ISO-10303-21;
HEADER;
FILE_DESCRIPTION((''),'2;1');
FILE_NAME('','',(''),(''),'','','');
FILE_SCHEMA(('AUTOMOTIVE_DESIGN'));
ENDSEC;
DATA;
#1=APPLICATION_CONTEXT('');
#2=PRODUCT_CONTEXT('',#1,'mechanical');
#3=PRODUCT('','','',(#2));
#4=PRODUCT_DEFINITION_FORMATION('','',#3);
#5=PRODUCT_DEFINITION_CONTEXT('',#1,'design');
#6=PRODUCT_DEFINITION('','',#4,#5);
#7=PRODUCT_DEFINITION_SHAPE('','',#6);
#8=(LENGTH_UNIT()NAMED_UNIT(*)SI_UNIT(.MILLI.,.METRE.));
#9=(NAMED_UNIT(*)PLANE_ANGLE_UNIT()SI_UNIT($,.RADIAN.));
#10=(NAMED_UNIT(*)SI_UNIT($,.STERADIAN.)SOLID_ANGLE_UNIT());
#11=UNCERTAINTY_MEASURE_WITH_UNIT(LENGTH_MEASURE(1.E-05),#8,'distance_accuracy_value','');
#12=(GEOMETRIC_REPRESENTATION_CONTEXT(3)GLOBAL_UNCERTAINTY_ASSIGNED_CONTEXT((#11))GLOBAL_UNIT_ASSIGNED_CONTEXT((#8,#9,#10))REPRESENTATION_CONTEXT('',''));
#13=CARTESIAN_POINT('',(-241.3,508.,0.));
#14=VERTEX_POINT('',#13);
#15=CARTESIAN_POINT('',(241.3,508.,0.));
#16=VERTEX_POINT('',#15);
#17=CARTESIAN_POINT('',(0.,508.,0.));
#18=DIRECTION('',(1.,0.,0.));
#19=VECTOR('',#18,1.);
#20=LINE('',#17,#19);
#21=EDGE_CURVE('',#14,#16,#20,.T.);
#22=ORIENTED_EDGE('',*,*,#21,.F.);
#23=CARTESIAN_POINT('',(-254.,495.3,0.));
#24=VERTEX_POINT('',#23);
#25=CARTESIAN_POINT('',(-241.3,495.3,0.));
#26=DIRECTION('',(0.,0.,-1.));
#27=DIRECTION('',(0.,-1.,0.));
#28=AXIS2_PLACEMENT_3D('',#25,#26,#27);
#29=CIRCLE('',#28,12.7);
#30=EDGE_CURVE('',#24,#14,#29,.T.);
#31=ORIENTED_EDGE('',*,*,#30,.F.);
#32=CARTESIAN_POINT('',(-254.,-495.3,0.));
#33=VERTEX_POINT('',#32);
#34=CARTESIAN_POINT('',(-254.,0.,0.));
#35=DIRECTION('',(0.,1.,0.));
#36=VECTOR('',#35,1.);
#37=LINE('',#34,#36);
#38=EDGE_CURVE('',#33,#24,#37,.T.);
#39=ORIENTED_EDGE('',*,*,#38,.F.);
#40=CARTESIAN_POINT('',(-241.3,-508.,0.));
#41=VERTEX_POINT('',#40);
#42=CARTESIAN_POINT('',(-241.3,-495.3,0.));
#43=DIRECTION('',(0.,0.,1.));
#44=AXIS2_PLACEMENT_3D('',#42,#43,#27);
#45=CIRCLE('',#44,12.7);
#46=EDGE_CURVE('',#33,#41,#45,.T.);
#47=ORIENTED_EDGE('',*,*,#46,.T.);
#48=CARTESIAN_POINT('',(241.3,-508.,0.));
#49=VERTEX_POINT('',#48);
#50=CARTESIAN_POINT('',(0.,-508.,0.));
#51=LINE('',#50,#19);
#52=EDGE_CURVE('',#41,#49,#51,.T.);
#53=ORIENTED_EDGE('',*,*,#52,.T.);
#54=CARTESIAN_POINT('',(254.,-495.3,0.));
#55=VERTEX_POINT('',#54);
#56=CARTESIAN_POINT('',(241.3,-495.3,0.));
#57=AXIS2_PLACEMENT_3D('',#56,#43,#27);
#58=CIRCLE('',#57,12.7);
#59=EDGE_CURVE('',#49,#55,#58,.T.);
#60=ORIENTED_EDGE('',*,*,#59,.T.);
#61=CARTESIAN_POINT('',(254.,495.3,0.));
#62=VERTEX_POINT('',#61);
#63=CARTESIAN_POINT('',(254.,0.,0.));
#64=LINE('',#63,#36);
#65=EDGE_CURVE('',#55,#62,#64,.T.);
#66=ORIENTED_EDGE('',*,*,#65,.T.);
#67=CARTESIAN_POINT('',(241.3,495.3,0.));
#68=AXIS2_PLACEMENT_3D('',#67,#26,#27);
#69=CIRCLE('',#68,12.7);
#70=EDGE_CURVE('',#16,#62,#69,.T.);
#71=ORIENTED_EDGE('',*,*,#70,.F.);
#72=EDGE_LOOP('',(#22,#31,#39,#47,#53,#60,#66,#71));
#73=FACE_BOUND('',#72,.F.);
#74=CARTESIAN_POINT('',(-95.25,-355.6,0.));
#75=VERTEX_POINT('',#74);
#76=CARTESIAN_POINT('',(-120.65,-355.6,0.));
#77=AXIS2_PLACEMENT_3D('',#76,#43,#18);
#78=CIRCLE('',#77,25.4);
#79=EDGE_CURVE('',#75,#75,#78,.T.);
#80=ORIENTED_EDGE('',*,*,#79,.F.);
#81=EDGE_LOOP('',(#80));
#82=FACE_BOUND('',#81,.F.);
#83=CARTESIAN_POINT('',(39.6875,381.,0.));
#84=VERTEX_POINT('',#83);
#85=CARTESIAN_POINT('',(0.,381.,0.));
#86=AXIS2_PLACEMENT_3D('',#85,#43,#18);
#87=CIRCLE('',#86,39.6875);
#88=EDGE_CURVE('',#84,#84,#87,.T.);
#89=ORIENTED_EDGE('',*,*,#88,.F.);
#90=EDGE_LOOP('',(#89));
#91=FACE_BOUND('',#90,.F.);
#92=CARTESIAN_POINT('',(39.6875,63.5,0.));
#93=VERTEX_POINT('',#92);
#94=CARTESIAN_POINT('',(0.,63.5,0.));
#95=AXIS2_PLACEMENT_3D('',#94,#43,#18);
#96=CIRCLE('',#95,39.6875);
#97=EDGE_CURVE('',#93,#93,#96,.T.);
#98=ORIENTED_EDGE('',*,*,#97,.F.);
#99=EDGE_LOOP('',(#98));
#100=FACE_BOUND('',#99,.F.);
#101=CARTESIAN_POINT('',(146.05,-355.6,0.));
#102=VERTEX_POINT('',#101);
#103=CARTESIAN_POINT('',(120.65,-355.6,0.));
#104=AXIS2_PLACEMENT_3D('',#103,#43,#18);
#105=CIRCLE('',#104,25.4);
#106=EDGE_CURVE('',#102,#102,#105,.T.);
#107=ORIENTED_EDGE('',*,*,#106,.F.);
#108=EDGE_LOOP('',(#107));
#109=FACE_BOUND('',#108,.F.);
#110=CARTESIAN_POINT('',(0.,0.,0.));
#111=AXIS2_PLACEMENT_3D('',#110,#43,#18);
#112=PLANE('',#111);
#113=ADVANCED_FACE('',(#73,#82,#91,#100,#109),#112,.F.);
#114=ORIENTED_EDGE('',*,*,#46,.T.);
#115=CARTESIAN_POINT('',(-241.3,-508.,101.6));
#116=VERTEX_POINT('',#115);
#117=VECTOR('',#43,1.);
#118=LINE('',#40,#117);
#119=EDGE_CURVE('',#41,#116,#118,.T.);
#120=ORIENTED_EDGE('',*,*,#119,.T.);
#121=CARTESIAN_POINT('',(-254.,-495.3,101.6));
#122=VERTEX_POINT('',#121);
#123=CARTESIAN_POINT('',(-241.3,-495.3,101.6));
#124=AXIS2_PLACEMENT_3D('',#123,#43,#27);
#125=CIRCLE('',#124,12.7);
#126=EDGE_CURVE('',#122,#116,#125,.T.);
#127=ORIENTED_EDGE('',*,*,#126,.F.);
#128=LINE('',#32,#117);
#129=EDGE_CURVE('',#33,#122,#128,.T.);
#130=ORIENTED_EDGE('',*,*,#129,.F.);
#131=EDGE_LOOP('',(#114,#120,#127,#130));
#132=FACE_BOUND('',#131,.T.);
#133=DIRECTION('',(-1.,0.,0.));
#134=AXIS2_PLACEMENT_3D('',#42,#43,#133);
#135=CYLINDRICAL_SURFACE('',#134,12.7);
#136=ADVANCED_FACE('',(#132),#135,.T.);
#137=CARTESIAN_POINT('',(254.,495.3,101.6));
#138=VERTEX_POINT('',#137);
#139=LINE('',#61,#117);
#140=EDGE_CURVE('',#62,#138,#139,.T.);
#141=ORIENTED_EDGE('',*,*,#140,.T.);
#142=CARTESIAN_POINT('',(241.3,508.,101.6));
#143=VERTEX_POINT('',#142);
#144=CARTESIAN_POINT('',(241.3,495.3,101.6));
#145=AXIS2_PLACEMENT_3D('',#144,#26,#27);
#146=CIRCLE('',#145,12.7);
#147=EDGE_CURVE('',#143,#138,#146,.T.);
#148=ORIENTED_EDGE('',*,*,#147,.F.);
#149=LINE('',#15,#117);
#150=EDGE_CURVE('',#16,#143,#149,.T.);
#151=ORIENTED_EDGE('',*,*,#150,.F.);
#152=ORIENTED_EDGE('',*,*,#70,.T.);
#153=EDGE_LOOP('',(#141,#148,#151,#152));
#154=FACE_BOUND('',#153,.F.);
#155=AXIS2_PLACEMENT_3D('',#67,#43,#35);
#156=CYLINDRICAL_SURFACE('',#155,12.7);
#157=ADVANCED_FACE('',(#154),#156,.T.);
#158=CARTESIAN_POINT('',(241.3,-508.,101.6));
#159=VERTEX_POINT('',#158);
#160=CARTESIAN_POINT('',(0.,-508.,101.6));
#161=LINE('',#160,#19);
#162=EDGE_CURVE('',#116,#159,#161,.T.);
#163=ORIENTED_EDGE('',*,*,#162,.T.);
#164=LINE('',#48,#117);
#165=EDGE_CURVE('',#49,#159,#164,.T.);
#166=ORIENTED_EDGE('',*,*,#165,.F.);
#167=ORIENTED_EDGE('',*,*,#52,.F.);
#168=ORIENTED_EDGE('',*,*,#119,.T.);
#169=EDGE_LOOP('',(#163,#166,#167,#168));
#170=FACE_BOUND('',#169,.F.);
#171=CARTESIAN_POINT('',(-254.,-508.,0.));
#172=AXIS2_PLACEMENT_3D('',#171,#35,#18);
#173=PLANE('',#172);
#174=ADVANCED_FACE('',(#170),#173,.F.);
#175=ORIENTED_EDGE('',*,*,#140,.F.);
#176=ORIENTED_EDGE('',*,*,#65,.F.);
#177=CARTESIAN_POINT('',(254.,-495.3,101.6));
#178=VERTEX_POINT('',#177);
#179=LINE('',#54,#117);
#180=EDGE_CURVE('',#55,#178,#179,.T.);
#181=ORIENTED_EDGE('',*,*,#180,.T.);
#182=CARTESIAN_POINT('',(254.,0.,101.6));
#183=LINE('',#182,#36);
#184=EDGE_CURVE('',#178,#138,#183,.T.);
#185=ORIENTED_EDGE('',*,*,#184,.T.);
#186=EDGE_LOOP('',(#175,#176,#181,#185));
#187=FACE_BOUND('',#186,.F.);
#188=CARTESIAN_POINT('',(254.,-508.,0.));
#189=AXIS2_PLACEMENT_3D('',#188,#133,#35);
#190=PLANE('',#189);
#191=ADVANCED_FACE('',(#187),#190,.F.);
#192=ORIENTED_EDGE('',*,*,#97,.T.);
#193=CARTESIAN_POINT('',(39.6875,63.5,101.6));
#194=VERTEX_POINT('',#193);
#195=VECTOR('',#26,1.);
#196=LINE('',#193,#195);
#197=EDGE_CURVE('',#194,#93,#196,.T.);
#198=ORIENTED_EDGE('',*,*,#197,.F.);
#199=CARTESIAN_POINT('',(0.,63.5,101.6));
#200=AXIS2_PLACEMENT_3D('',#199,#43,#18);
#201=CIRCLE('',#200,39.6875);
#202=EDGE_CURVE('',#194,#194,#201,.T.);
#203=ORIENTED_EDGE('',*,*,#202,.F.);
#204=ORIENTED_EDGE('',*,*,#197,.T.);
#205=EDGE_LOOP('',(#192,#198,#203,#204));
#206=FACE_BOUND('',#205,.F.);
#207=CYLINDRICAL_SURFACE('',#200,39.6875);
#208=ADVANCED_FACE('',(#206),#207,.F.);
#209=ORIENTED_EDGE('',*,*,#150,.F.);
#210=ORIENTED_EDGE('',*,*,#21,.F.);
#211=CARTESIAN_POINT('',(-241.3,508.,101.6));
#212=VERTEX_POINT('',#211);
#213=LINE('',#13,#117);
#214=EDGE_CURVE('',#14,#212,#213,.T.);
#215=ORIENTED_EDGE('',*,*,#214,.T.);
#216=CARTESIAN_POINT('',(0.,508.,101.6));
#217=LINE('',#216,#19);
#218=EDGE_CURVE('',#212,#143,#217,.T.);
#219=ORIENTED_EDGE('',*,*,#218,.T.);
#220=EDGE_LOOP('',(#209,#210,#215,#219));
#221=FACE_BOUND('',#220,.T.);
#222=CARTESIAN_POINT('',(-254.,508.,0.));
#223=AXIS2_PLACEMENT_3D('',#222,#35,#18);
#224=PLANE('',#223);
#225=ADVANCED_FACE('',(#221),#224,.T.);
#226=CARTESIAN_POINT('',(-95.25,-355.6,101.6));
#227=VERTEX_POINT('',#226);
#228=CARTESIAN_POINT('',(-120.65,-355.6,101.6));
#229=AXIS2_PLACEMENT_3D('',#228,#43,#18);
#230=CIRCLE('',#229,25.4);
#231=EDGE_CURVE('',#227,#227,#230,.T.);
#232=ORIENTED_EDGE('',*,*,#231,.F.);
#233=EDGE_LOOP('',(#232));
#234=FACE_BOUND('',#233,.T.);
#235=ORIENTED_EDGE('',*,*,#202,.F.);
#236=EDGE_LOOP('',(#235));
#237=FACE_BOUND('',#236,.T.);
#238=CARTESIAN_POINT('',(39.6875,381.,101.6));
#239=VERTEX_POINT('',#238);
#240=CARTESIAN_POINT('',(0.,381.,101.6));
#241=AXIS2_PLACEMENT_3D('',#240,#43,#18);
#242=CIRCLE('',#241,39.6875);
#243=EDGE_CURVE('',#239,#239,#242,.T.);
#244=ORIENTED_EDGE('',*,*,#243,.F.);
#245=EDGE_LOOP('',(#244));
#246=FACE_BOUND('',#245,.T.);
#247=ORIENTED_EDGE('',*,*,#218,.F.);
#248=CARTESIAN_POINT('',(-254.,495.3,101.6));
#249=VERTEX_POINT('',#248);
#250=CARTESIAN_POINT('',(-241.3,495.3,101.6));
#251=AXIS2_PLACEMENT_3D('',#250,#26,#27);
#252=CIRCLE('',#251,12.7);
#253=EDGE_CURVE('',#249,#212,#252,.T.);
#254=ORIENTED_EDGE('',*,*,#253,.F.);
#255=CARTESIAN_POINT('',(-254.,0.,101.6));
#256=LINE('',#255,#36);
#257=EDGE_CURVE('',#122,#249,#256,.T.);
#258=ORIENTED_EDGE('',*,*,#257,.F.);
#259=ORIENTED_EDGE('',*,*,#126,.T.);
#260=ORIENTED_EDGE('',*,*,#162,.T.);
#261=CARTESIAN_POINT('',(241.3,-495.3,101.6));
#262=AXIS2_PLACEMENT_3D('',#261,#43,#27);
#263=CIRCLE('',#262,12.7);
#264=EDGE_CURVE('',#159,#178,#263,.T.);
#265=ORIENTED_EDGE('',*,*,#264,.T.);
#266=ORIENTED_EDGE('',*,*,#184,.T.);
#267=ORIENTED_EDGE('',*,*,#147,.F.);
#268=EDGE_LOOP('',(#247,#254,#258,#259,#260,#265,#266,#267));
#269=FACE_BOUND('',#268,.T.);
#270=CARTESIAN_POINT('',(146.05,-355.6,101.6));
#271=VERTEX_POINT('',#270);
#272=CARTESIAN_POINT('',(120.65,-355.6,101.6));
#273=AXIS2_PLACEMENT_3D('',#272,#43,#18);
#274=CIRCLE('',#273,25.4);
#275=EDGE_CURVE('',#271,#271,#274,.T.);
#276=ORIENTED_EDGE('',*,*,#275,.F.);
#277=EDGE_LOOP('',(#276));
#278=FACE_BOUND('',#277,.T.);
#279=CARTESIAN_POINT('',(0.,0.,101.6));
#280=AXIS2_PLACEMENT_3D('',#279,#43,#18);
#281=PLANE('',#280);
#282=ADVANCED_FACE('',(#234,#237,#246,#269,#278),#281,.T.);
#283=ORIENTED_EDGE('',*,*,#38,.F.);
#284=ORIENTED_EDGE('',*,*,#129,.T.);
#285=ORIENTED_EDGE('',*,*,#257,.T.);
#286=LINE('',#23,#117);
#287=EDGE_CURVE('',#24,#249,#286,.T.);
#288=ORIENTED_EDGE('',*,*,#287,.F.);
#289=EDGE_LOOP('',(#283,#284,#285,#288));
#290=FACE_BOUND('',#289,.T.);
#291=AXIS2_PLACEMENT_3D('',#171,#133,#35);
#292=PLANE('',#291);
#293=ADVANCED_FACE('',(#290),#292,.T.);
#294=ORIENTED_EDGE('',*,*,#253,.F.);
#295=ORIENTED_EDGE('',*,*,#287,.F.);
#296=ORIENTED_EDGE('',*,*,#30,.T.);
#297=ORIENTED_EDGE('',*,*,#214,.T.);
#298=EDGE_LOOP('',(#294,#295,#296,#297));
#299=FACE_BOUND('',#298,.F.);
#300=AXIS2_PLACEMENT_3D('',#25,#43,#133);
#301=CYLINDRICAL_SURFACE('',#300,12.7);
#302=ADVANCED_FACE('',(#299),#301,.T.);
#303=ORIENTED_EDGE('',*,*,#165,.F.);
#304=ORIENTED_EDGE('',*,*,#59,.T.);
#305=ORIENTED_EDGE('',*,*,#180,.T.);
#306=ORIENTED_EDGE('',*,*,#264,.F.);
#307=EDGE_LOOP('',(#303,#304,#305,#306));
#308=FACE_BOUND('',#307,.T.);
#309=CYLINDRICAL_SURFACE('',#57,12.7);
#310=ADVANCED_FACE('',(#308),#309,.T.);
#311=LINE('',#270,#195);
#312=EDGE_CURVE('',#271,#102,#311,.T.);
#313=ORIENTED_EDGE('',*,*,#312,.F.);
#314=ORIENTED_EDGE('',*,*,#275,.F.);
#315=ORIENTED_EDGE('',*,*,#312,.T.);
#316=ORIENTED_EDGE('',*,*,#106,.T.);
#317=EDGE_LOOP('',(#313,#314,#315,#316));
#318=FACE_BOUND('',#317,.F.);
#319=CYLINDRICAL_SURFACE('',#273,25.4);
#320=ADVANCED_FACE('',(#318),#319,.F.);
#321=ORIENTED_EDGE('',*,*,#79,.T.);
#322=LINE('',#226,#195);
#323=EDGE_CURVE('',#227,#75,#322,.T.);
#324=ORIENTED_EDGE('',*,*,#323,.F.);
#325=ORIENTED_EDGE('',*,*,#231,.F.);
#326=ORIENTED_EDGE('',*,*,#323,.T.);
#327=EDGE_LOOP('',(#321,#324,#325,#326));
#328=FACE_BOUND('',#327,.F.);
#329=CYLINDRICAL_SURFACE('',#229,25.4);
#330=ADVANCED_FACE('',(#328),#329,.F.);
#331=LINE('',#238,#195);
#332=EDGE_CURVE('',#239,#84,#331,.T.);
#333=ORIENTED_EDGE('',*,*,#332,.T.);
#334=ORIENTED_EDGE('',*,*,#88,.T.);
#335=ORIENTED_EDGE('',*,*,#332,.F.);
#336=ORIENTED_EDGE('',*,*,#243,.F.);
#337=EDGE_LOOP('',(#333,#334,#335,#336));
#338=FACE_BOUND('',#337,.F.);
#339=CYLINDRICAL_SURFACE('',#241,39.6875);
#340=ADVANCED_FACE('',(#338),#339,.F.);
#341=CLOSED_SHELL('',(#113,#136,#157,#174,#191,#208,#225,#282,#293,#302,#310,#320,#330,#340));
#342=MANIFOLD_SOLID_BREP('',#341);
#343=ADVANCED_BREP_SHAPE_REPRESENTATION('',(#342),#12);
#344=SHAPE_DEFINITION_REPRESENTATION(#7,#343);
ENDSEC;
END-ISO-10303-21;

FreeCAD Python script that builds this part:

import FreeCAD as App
import Part
import Sketcher
from FreeCAD import Vector
Q = App.Units.Quantity


def edges_at(feature, points):
    """Names of the edges that pass closest to the given points."""
    edges = feature.Shape.Edges
    near = lambda p: min(range(len(edges)), key=lambda i: edges[i].distToShape(Part.Vertex(*p))[0])
    return sorted({f"Edge{near(p) + 1}" for p in points})

doc = App.newDocument("Part")
params = doc.addObject("Spreadsheet::Sheet", "Params")
for row, (alias, value) in enumerate([
    ("sketch1_width", "20 in"),
    ("sketch1_height", "40 in"),
    ("pad1_length", "4 in"),
    ("sketch2_diameter", "2 in"),
    ("sketch2_diameter2", "3.125 in"),
    ("fillet_radius", "0.5 in"),
], start=1):
    params.set(f"A{row}", alias)
    params.set(f"B{row}", "=" + value)
    params.setAlias(f"B{row}", alias)

body = doc.addObject("PartDesign::Body", "Body")

# Sketch on XY plane
sketch1 = body.newObject("Sketcher::SketchObject", "Sketch")
sketch1.AttachmentSupport = (doc.getObject("XY_Plane"), [""])
sketch1.MapMode = "FlatFace"
sketch1.addGeometry([
    Part.LineSegment(Vector(-254, 508, 0), Vector(-254, -508, 0)),
    Part.LineSegment(Vector(-254, -508, 0), Vector(254, -508, 0)),
    Part.LineSegment(Vector(254, -508, 0), Vector(254, 508, 0)),
    Part.LineSegment(Vector(254, 508, 0), Vector(-254, 508, 0)),
], False)
sketch1.addConstraint([
    Sketcher.Constraint("Coincident", 0, 2, 1, 1),
    Sketcher.Constraint("Coincident", 1, 2, 2, 1),
    Sketcher.Constraint("Coincident", 2, 2, 3, 1),
    Sketcher.Constraint("Coincident", 3, 2, 0, 1),
    Sketcher.Constraint("Vertical", 0),
    Sketcher.Constraint("Horizontal", 1),
    Sketcher.Constraint("Vertical", 2),
    Sketcher.Constraint("Horizontal", 3),
    Sketcher.Constraint("Symmetric", 0, 2, 2, 2, -1, 1),
    Sketcher.Constraint("DistanceX", 1, 1, 1, 2, Q("20 in")),
    Sketcher.Constraint("DistanceY", 0, 2, 0, 1, Q("40 in")),
])
sketch1.setExpression("Constraints[9]", "Params.sketch1_width")
sketch1.setExpression("Constraints[10]", "Params.sketch1_height")
pad1 = body.newObject("PartDesign::Pad", "Pad")
pad1.Profile = sketch1
pad1.setExpression("Length", "Params.pad1_length")

# Sketch on XY plane
sketch2 = body.newObject("Sketcher::SketchObject", "Sketch001")
sketch2.AttachmentSupport = (doc.getObject("XY_Plane"), [""])
sketch2.MapMode = "FlatFace"
sketch2.AttachmentOffset = App.Placement(Vector(0, 0, 4 * 25.4), App.Rotation())
sketch2.addGeometry([
    Part.Circle(Vector(-121, -356, 0), Vector(0, 0, 1), 25),
    Part.Circle(Vector(121, -356, 0), Vector(0, 0, 1), 25),
    Part.Circle(Vector(0, 64, 0), Vector(0, 0, 1), 40),
    Part.Circle(Vector(0, 381, 0), Vector(0, 0, 1), 40),
], False)
sketch2.addConstraint([
    Sketcher.Constraint("Equal", 0, 1),
    Sketcher.Constraint("Equal", 2, 3),
    Sketcher.Constraint("Symmetric", 0, 3, 1, 3, -2),
    Sketcher.Constraint("PointOnObject", 2, 3, -2),
    Sketcher.Constraint("PointOnObject", 3, 3, -2),
    Sketcher.Constraint("Diameter", 0, Q("2 in")),
    Sketcher.Constraint("Diameter", 2, Q("3.125 in")),
    Sketcher.Constraint("DistanceY", 0, 3, -1, 1, Q("14 in")),
    Sketcher.Constraint("DistanceY", -1, 1, 3, 3, Q("15 in")),
    Sketcher.Constraint("DistanceY", -1, 1, 2, 3, Q("2.5 in")),
    Sketcher.Constraint("DistanceX", 0, 3, 1, 3, Q("9.5 in")),
])
sketch2.setExpression("Constraints[5]", "Params.sketch2_diameter")
sketch2.setExpression("Constraints[6]", "Params.sketch2_diameter2")
pocket1 = body.newObject("PartDesign::Pocket", "Pocket")
pocket1.Profile = sketch2
pocket1.Type = "ThroughAll"
doc.recompute()

fillet = body.newObject("PartDesign::Fillet", "Fillet")
fillet.Base = (pocket1, edges_at(pocket1, [
    (-254, -508, 50.8),
    (254, -508, 50.8),
    (254, 508, 50.8),
    (-254, 508, 50.8),
]))
fillet.setExpression("Radius", "Params.fillet_radius")

doc.recompute()
